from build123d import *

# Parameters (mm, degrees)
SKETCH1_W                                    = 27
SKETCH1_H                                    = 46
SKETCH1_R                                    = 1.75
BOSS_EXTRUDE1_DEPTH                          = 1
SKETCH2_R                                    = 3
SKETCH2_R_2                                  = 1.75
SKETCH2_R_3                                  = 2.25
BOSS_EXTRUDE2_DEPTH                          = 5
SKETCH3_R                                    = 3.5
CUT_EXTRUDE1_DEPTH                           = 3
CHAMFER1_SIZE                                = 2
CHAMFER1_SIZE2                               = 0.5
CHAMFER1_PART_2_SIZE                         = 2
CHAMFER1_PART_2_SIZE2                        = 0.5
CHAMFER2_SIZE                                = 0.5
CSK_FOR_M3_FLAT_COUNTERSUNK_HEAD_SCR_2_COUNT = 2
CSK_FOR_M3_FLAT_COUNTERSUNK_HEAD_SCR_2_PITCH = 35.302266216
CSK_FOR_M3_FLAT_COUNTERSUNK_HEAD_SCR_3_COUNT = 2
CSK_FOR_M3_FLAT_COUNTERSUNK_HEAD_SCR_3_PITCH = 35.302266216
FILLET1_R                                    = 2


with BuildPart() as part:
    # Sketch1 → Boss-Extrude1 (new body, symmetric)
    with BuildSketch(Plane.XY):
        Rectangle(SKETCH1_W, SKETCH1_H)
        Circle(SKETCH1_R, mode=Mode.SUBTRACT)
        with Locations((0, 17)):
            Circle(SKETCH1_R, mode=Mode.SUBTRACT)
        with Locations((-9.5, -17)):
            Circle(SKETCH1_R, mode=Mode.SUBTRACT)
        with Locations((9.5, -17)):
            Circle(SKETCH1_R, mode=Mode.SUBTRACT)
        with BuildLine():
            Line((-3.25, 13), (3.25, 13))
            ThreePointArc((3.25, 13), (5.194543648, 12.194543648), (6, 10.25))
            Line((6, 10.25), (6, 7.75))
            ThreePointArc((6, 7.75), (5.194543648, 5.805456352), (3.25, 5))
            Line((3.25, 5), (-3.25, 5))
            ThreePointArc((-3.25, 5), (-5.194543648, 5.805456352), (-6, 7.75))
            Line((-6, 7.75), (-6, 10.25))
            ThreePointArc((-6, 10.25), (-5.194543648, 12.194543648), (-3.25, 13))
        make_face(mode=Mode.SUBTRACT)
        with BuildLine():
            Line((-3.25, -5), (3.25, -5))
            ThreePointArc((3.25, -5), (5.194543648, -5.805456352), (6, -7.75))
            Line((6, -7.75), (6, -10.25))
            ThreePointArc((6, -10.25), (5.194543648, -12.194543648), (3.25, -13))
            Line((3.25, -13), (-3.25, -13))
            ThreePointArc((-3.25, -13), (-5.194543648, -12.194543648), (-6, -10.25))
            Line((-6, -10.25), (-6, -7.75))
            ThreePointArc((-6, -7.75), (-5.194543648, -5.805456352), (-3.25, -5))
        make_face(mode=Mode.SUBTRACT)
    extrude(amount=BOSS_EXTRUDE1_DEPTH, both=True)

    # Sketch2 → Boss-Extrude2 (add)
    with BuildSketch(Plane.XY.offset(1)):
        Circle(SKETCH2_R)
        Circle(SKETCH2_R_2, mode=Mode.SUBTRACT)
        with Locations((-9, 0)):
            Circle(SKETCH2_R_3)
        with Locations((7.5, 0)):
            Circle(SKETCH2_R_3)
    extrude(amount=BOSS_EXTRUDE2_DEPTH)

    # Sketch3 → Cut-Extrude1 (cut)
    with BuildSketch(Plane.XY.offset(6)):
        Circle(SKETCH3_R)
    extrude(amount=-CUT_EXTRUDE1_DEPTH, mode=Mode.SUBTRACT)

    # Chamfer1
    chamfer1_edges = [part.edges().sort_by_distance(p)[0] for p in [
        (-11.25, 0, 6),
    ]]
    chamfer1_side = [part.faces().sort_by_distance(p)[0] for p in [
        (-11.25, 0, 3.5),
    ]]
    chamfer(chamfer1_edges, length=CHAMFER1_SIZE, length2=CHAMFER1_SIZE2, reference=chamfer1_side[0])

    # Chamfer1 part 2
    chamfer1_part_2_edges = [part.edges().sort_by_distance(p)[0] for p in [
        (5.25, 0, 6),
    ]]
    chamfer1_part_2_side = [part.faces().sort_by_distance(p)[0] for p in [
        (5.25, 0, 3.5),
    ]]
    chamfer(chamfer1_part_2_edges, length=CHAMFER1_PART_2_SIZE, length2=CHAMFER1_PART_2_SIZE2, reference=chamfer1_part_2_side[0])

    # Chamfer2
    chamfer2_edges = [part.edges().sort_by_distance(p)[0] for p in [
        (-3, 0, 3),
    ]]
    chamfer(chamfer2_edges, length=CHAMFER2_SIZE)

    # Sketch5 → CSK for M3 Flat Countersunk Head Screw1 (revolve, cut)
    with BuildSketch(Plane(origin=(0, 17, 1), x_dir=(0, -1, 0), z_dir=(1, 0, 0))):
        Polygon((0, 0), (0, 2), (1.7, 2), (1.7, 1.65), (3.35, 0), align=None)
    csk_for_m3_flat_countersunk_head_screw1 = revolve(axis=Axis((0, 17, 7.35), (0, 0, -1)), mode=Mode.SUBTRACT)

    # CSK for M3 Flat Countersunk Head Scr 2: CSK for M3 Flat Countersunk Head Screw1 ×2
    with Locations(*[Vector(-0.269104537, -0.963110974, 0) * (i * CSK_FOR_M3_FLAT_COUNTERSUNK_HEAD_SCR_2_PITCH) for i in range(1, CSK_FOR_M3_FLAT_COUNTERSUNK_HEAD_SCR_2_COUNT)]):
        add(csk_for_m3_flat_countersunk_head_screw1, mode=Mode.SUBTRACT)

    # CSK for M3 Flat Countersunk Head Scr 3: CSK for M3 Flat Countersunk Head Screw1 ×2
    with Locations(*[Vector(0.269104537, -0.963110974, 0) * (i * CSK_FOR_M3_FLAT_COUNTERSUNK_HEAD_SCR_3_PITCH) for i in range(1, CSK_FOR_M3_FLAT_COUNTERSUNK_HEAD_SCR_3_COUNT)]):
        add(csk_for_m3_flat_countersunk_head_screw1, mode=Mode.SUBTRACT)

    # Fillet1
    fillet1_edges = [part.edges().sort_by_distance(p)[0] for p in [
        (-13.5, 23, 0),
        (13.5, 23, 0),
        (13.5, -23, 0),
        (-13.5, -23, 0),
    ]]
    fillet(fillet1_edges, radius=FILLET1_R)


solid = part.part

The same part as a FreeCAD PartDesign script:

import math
import FreeCAD as App
import Part
import Sketcher

V = App.Vector
Q = App.Units.Quantity


def edges_at(feature, points):
    """Names of the edges that pass closest to the given points."""
    edges = feature.Shape.Edges
    near = lambda p: min(range(len(edges)), key=lambda i: edges[i].distToShape(Part.Vertex(*p))[0])
    return sorted({f"Edge{near(p) + 1}" for p in points})

doc = App.newDocument("Part")
params = doc.addObject("Spreadsheet::Sheet", "Params")
for row, (alias, value) in enumerate([
    ("sketch1_diameter", "3.5 mm"),
    ("sketch1_width", "27 mm"),
    ("sketch1_height", "46 mm"),
    ("sketch1_radius", "2.75 mm"),
    ("sketch1_width2", "6.5 mm"),
    ("pad1_length", "2 mm"),
    ("sketch2_diameter", "6 mm"),
    ("sketch2_diameter2", "3.5 mm"),
    ("sketch2_diameter3", "4.5 mm"),
    ("pad2_length", "5 mm"),
    ("sketch3_diameter", "7 mm"),
    ("pocket1_length", "3 mm"),
    ("chamfer_size", "2 mm"),
    ("chamfer_size2", "0.5 mm"),
    ("chamfer2_size", "2 mm"),
    ("chamfer2_size2", "0.5 mm"),
    ("chamfer3_size", "0.5 mm"),
    ("sketch4_height", "2 mm"),
    ("sketch4_width", "1.7 mm"),
    ("sketch4_width2", "3.35 mm"),
    ("groove_angle", "360 deg"),
    ("linearpattern_pitch", "35.302266 mm"),
    ("linearpattern2_pitch", "35.302266 mm"),
    ("fillet_radius", "2 mm"),
], start=1):
    params.set(f"A{row}", alias)
    params.set(f"B{row}", "=" + value)
    params.setAlias(f"B{row}", alias)

body = doc.addObject("PartDesign::Body", "Body")

sketch1 = body.newObject("Sketcher::SketchObject", "Sketch")
sketch1.AttachmentSupport = (doc.getObject("XY_Plane"), [""])
sketch1.MapMode = "FlatFace"
sketch1.addGeometry([
    Part.LineSegment(V(-13.5, 23, 0), V(-13.5, -23, 0)),
    Part.LineSegment(V(-13.5, -23, 0), V(13.5, -23, 0)),
    Part.LineSegment(V(13.5, -23, 0), V(13.5, 23, 0)),
    Part.LineSegment(V(13.5, 23, 0), V(-13.5, 23, 0)),
    Part.Circle(V(-9.5, -17, 0), V(0, 0, 1), 1.75),
    Part.Circle(V(9.5, -17, 0), V(0, 0, 1), 1.75),
    Part.ArcOfCircle(Part.Circle(V(-3.25, -7.75, 0), V(0, 0, 1), 2.75), math.radians(90), math.radians(180)),
    Part.LineSegment(V(-3.25, -5, 0), V(3.25, -5, 0)),
    Part.ArcOfCircle(Part.Circle(V(3.25, -7.75, 0), V(0, 0, 1), 2.75), math.radians(0), math.radians(90)),
    Part.LineSegment(V(6, -7.75, 0), V(6, -10.25, 0)),
    Part.ArcOfCircle(Part.Circle(V(3.25, -10.25, 0), V(0, 0, 1), 2.75), math.radians(-90), math.radians(0)),
    Part.LineSegment(V(3.25, -13, 0), V(-3.25, -13, 0)),
    Part.ArcOfCircle(Part.Circle(V(-3.25, -10.25, 0), V(0, 0, 1), 2.75), math.radians(-180), math.radians(-90)),
    Part.LineSegment(V(-6, -10.25, 0), V(-6, -7.75, 0)),
    Part.Circle(V(0, 0, 0), V(0, 0, 1), 1.75),
    Part.ArcOfCircle(Part.Circle(V(-3.25, 10.25, 0), V(0, 0, 1), 2.75), math.radians(90), math.radians(180)),
    Part.LineSegment(V(-3.25, 13, 0), V(3.25, 13, 0)),
    Part.ArcOfCircle(Part.Circle(V(3.25, 10.25, 0), V(0, 0, 1), 2.75), math.radians(0), math.radians(90)),
    Part.LineSegment(V(6, 10.25, 0), V(6, 7.75, 0)),
    Part.ArcOfCircle(Part.Circle(V(3.25, 7.75, 0), V(0, 0, 1), 2.75), math.radians(-90), math.radians(0)),
    Part.LineSegment(V(3.25, 5, 0), V(-3.25, 5, 0)),
    Part.ArcOfCircle(Part.Circle(V(-3.25, 7.75, 0), V(0, 0, 1), 2.75), math.radians(-180), math.radians(-90)),
    Part.LineSegment(V(-6, 7.75, 0), V(-6, 10.25, 0)),
    Part.Circle(V(0, 17, 0), V(0, 0, 1), 1.75),
], False)
sketch1.addConstraint([
    Sketcher.Constraint("Coincident", 0, 2, 1, 1),
    Sketcher.Constraint("Coincident", 1, 2, 2, 1),
    Sketcher.Constraint("Coincident", 2, 2, 3, 1),
    Sketcher.Constraint("Coincident", 3, 2, 0, 1),
    Sketcher.Constraint("Tangent", 6, 1, 7, 1),
    Sketcher.Constraint("Tangent", 7, 2, 8, 2),
    Sketcher.Constraint("Tangent", 8, 1, 9, 1),
    Sketcher.Constraint("Tangent", 9, 2, 10, 2),
    Sketcher.Constraint("Tangent", 10, 1, 11, 1),
    Sketcher.Constraint("Tangent", 11, 2, 12, 2),
    Sketcher.Constraint("Tangent", 12, 1, 13, 1),
    Sketcher.Constraint("Tangent", 13, 2, 6, 2),
    Sketcher.Constraint("Tangent", 15, 1, 16, 1),
    Sketcher.Constraint("Tangent", 16, 2, 17, 2),
    Sketcher.Constraint("Tangent", 17, 1, 18, 1),
    Sketcher.Constraint("Tangent", 18, 2, 19, 2),
    Sketcher.Constraint("Tangent", 19, 1, 20, 1),
    Sketcher.Constraint("Tangent", 20, 2, 21, 2),
    Sketcher.Constraint("Tangent", 21, 1, 22, 1),
    Sketcher.Constraint("Tangent", 22, 2, 15, 2),
    Sketcher.Constraint("Vertical", 0),
    Sketcher.Constraint("Horizontal", 1),
    Sketcher.Constraint("Vertical", 2),
    Sketcher.Constraint("Horizontal", 3),
    Sketcher.Constraint("Horizontal", 7),
    Sketcher.Constraint("Vertical", 9),
    Sketcher.Constraint("Horizontal", 11),
    Sketcher.Constraint("Vertical", 13),
    Sketcher.Constraint("Horizontal", 16),
    Sketcher.Constraint("Vertical", 18),
    Sketcher.Constraint("Horizontal", 20),
    Sketcher.Constraint("Vertical", 22),
    Sketcher.Constraint("Coincident", 14, 3, -1, 1),
    Sketcher.Constraint("Equal", 4, 5),
    Sketcher.Constraint("Equal", 6, 8),
    Sketcher.Constraint("Equal", 8, 10),
    Sketcher.Constraint("Equal", 10, 12),
    Sketcher.Constraint("Equal", 5, 14),
    Sketcher.Constraint("Equal", 12, 15),
    Sketcher.Constraint("Equal", 15, 17),
    Sketcher.Constraint("Equal", 17, 19),
    Sketcher.Constraint("Equal", 19, 21),
    Sketcher.Constraint("Equal", 14, 23),
    Sketcher.Constraint("Symmetric", 10, 3, 15, 3, -1, 1),
    Sketcher.Constraint("Symmetric", 6, 3, 19, 3, -1, 1),
    Sketcher.Constraint("Symmetric", 0, 2, 2, 2, -1, 1),
    Sketcher.Constraint("Symmetric", 4, 3, 5, 3, -2),
    Sketcher.Constraint("PointOnObject", 23, 3, -2),
    Sketcher.Constraint("Vertical", 12, 3, 15, 3),
    Sketcher.Constraint("Diameter", 4, Q("3.5 mm")),
    Sketcher.Constraint("DistanceX", 1, 1, 1, 2, Q("27 mm")),
    Sketcher.Constraint("DistanceY", 0, 2, 0, 1, Q("46 mm")),
    Sketcher.Constraint("Radius", 6, Q("2.75 mm")),
    Sketcher.Constraint("DistanceX", 7, 1, 7, 2, Q("6.5 mm")),
    Sketcher.Constraint("DistanceY", 9, 2, 9, 1, Q("2.5 mm")),
    Sketcher.Constraint("DistanceY", 4, 3, -1, 1, Q("17 mm")),
    Sketcher.Constraint("DistanceY", -1, 1, 23, 3, Q("17 mm")),
    Sketcher.Constraint("DistanceY", 6, 1, -1, 1, Q("5 mm")),
    Sketcher.Constraint("DistanceX", 4, 3, 5, 3, Q("19 mm")),
])
sketch1.setExpression("Constraints[49]", "Params.sketch1_diameter")
sketch1.setExpression("Constraints[50]", "Params.sketch1_width")
sketch1.setExpression("Constraints[51]", "Params.sketch1_height")
sketch1.setExpression("Constraints[52]", "Params.sketch1_radius")
sketch1.setExpression("Constraints[53]", "Params.sketch1_width2")
pad1 = body.newObject("PartDesign::Pad", "Pad")
pad1.Profile = sketch1
pad1.setExpression("Length", "Params.pad1_length")
pad1.Midplane = True

sketch2 = body.newObject("Sketcher::SketchObject", "Sketch001")
sketch2.AttachmentSupport = (doc.getObject("XY_Plane"), [""])
sketch2.MapMode = "FlatFace"
sketch2.AttachmentOffset = App.Placement(V(0, 0, 1), App.Rotation())
sketch2.addGeometry([
    Part.Circle(V(0, 0, 0), V(0, 0, 1), 3),
    Part.Circle(V(0, 0, 0), V(0, 0, 1), 1.75),
    Part.Circle(V(-9, 0, 0), V(0, 0, 1), 2.25),
    Part.Circle(V(7.5, 0, 0), V(0, 0, 1), 2.25),
], False)
sketch2.addConstraint([
    Sketcher.Constraint("Coincident", 0, 3, -1, 1),
    Sketcher.Constraint("Coincident", 1, 3, -1, 1),
    Sketcher.Constraint("Equal", 2, 3),
    Sketcher.Constraint("PointOnObject", 2, 3, -1),
    Sketcher.Constraint("PointOnObject", 3, 3, -1),
    Sketcher.Constraint("Diameter", 0, Q("6 mm")),
    Sketcher.Constraint("Diameter", 1, Q("3.5 mm")),
    Sketcher.Constraint("Diameter", 2, Q("4.5 mm")),
    Sketcher.Constraint("DistanceX", 2, 3, -1, 1, Q("9 mm")),
    Sketcher.Constraint("DistanceX", -1, 1, 3, 3, Q("7.5 mm")),
])
sketch2.setExpression("Constraints[5]", "Params.sketch2_diameter")
sketch2.setExpression("Constraints[6]", "Params.sketch2_diameter2")
sketch2.setExpression("Constraints[7]", "Params.sketch2_diameter3")
pad2 = body.newObject("PartDesign::Pad", "Pad001")
pad2.Profile = sketch2
pad2.setExpression("Length", "Params.pad2_length")

sketch3 = body.newObject("Sketcher::SketchObject", "Sketch002")
sketch3.AttachmentSupport = (doc.getObject("XY_Plane"), [""])
sketch3.MapMode = "FlatFace"
sketch3.AttachmentOffset = App.Placement(V(0, 0, 6), App.Rotation())
sketch3.addGeometry(Part.Circle(V(0, 0, 0), V(0, 0, 1), 3.5), False)
sketch3.addConstraint([
    Sketcher.Constraint("Coincident", 0, 3, -1, 1),
    Sketcher.Constraint("Diameter", 0, Q("7 mm")),
])
sketch3.setExpression("Constraints[1]", "Params.sketch3_diameter")
pocket1 = body.newObject("PartDesign::Pocket", "Pocket")
pocket1.Profile = sketch3
pocket1.setExpression("Length", "Params.pocket1_length")
doc.recompute()

chamfer = body.newObject("PartDesign::Chamfer", "Chamfer")
chamfer.Base = (pocket1, edges_at(pocket1, [(-11.25, 0, 6)]))
chamfer.ChamferType = "Two distances"
chamfer.setExpression("Size", "Params.chamfer_size")
chamfer.setExpression("Size2", "Params.chamfer_size2")
doc.recompute()

chamfer2 = body.newObject("PartDesign::Chamfer", "Chamfer001")
chamfer2.Base = (chamfer, edges_at(chamfer, [(5.25, 0, 6)]))
chamfer2.ChamferType = "Two distances"
chamfer2.setExpression("Size", "Params.chamfer2_size")
chamfer2.setExpression("Size2", "Params.chamfer2_size2")
doc.recompute()

chamfer3 = body.newObject("PartDesign::Chamfer", "Chamfer002")
chamfer3.Base = (chamfer2, edges_at(chamfer2, [(-3, 0, 3)]))
chamfer3.setExpression("Size", "Params.chamfer3_size")

sketch4 = body.newObject("Sketcher::SketchObject", "Sketch003")
sketch4.AttachmentSupport = (doc.getObject("YZ_Plane"), [""])
sketch4.MapMode = "FlatFace"
sketch4.addGeometry([
    Part.LineSegment(V(17, -1, 0), V(17, 1, 0)),
    Part.LineSegment(V(17, 1, 0), V(13.65, 1, 0)),
    Part.LineSegment(V(13.65, 1, 0), V(15.3, -0.65, 0)),
    Part.LineSegment(V(15.3, -0.65, 0), V(15.3, -1, 0)),
    Part.LineSegment(V(15.3, -1, 0), V(17, -1, 0)),
], False)
sketch4.addGeometry(Part.LineSegment(V(17, 1, 0), V(17, -1, 0)), True)
sketch4.addConstraint([
    Sketcher.Constraint("Coincident", 0, 2, 1, 1),
    Sketcher.Constraint("Coincident", 1, 2, 2, 1),
    Sketcher.Constraint("Coincident", 2, 2, 3, 1),
    Sketcher.Constraint("Coincident", 3, 2, 4, 1),
    Sketcher.Constraint("Coincident", 4, 2, 0, 1),
    Sketcher.Constraint("Vertical", 0),
    Sketcher.Constraint("Horizontal", 1),
    Sketcher.Constraint("Vertical", 3),
    Sketcher.Constraint("Horizontal", 4),
    Sketcher.Constraint("Vertical", 5),
    Sketcher.Constraint("Coincident", 5, 1, 0, 2),
    Sketcher.Constraint("Horizontal", 3, 2, 5, 2),
    Sketcher.Constraint("DistanceY", 0, 1, 0, 2, Q("2 mm")),
    Sketcher.Constraint("Angle", 2, Q("-45 deg")),
    Sketcher.Constraint("DistanceX", 4, 1, 4, 2, Q("1.7 mm")),
    Sketcher.Constraint("DistanceX", -1, 1, 0, 2, Q("17 mm")),
    Sketcher.Constraint("DistanceY", -1, 1, 0, 2, Q("1 mm")),
    Sketcher.Constraint("DistanceX", 1, 2, 1, 1, Q("3.35 mm")),
])
sketch4.setExpression("Constraints[12]", "Params.sketch4_height")
sketch4.setExpression("Constraints[14]", "Params.sketch4_width")
sketch4.setExpression("Constraints[17]", "Params.sketch4_width2")
groove = body.newObject("PartDesign::Groove", "Groove")
groove.Profile = sketch4
groove.ReferenceAxis = (sketch4, ["Axis0"])
groove.setExpression("Angle", "Params.groove_angle")
doc.recompute()

datumline = body.newObject("PartDesign::Line", "DatumLine")
datumline.Placement = App.Placement(V(0, 0, 0), App.Rotation(V(0, 0, 1), V(-0.269104537, -0.963110974, 0)))
linearpattern = body.newObject("PartDesign::LinearPattern", "LinearPattern")
linearpattern.Originals = [groove]
linearpattern.Direction = (datumline, [""])
linearpattern.Mode = "offset"
linearpattern.setExpression("Offset", "Params.linearpattern_pitch")
linearpattern.Occurrences = 2
body.Tip = linearpattern
doc.recompute()

datumline2 = body.newObject("PartDesign::Line", "DatumLine001")
datumline2.Placement = App.Placement(V(0, 0, 0), App.Rotation(V(0, 0, 1), V(0.269104537, -0.963110974, 0)))
linearpattern2 = body.newObject("PartDesign::LinearPattern", "LinearPattern001")
linearpattern2.Originals = [groove]
linearpattern2.Direction = (datumline2, [""])
linearpattern2.Mode = "offset"
linearpattern2.setExpression("Offset", "Params.linearpattern2_pitch")
linearpattern2.Occurrences = 2
body.Tip = linearpattern2
doc.recompute()

fillet = body.newObject("PartDesign::Fillet", "Fillet")
fillet.Base = (linearpattern2, edges_at(linearpattern2, [
    (-13.5, 23, 0),
    (13.5, 23, 0),
    (13.5, -23, 0),
    (-13.5, -23, 0),
]))
fillet.setExpression("Radius", "Params.fillet_radius")

doc.recompute()
